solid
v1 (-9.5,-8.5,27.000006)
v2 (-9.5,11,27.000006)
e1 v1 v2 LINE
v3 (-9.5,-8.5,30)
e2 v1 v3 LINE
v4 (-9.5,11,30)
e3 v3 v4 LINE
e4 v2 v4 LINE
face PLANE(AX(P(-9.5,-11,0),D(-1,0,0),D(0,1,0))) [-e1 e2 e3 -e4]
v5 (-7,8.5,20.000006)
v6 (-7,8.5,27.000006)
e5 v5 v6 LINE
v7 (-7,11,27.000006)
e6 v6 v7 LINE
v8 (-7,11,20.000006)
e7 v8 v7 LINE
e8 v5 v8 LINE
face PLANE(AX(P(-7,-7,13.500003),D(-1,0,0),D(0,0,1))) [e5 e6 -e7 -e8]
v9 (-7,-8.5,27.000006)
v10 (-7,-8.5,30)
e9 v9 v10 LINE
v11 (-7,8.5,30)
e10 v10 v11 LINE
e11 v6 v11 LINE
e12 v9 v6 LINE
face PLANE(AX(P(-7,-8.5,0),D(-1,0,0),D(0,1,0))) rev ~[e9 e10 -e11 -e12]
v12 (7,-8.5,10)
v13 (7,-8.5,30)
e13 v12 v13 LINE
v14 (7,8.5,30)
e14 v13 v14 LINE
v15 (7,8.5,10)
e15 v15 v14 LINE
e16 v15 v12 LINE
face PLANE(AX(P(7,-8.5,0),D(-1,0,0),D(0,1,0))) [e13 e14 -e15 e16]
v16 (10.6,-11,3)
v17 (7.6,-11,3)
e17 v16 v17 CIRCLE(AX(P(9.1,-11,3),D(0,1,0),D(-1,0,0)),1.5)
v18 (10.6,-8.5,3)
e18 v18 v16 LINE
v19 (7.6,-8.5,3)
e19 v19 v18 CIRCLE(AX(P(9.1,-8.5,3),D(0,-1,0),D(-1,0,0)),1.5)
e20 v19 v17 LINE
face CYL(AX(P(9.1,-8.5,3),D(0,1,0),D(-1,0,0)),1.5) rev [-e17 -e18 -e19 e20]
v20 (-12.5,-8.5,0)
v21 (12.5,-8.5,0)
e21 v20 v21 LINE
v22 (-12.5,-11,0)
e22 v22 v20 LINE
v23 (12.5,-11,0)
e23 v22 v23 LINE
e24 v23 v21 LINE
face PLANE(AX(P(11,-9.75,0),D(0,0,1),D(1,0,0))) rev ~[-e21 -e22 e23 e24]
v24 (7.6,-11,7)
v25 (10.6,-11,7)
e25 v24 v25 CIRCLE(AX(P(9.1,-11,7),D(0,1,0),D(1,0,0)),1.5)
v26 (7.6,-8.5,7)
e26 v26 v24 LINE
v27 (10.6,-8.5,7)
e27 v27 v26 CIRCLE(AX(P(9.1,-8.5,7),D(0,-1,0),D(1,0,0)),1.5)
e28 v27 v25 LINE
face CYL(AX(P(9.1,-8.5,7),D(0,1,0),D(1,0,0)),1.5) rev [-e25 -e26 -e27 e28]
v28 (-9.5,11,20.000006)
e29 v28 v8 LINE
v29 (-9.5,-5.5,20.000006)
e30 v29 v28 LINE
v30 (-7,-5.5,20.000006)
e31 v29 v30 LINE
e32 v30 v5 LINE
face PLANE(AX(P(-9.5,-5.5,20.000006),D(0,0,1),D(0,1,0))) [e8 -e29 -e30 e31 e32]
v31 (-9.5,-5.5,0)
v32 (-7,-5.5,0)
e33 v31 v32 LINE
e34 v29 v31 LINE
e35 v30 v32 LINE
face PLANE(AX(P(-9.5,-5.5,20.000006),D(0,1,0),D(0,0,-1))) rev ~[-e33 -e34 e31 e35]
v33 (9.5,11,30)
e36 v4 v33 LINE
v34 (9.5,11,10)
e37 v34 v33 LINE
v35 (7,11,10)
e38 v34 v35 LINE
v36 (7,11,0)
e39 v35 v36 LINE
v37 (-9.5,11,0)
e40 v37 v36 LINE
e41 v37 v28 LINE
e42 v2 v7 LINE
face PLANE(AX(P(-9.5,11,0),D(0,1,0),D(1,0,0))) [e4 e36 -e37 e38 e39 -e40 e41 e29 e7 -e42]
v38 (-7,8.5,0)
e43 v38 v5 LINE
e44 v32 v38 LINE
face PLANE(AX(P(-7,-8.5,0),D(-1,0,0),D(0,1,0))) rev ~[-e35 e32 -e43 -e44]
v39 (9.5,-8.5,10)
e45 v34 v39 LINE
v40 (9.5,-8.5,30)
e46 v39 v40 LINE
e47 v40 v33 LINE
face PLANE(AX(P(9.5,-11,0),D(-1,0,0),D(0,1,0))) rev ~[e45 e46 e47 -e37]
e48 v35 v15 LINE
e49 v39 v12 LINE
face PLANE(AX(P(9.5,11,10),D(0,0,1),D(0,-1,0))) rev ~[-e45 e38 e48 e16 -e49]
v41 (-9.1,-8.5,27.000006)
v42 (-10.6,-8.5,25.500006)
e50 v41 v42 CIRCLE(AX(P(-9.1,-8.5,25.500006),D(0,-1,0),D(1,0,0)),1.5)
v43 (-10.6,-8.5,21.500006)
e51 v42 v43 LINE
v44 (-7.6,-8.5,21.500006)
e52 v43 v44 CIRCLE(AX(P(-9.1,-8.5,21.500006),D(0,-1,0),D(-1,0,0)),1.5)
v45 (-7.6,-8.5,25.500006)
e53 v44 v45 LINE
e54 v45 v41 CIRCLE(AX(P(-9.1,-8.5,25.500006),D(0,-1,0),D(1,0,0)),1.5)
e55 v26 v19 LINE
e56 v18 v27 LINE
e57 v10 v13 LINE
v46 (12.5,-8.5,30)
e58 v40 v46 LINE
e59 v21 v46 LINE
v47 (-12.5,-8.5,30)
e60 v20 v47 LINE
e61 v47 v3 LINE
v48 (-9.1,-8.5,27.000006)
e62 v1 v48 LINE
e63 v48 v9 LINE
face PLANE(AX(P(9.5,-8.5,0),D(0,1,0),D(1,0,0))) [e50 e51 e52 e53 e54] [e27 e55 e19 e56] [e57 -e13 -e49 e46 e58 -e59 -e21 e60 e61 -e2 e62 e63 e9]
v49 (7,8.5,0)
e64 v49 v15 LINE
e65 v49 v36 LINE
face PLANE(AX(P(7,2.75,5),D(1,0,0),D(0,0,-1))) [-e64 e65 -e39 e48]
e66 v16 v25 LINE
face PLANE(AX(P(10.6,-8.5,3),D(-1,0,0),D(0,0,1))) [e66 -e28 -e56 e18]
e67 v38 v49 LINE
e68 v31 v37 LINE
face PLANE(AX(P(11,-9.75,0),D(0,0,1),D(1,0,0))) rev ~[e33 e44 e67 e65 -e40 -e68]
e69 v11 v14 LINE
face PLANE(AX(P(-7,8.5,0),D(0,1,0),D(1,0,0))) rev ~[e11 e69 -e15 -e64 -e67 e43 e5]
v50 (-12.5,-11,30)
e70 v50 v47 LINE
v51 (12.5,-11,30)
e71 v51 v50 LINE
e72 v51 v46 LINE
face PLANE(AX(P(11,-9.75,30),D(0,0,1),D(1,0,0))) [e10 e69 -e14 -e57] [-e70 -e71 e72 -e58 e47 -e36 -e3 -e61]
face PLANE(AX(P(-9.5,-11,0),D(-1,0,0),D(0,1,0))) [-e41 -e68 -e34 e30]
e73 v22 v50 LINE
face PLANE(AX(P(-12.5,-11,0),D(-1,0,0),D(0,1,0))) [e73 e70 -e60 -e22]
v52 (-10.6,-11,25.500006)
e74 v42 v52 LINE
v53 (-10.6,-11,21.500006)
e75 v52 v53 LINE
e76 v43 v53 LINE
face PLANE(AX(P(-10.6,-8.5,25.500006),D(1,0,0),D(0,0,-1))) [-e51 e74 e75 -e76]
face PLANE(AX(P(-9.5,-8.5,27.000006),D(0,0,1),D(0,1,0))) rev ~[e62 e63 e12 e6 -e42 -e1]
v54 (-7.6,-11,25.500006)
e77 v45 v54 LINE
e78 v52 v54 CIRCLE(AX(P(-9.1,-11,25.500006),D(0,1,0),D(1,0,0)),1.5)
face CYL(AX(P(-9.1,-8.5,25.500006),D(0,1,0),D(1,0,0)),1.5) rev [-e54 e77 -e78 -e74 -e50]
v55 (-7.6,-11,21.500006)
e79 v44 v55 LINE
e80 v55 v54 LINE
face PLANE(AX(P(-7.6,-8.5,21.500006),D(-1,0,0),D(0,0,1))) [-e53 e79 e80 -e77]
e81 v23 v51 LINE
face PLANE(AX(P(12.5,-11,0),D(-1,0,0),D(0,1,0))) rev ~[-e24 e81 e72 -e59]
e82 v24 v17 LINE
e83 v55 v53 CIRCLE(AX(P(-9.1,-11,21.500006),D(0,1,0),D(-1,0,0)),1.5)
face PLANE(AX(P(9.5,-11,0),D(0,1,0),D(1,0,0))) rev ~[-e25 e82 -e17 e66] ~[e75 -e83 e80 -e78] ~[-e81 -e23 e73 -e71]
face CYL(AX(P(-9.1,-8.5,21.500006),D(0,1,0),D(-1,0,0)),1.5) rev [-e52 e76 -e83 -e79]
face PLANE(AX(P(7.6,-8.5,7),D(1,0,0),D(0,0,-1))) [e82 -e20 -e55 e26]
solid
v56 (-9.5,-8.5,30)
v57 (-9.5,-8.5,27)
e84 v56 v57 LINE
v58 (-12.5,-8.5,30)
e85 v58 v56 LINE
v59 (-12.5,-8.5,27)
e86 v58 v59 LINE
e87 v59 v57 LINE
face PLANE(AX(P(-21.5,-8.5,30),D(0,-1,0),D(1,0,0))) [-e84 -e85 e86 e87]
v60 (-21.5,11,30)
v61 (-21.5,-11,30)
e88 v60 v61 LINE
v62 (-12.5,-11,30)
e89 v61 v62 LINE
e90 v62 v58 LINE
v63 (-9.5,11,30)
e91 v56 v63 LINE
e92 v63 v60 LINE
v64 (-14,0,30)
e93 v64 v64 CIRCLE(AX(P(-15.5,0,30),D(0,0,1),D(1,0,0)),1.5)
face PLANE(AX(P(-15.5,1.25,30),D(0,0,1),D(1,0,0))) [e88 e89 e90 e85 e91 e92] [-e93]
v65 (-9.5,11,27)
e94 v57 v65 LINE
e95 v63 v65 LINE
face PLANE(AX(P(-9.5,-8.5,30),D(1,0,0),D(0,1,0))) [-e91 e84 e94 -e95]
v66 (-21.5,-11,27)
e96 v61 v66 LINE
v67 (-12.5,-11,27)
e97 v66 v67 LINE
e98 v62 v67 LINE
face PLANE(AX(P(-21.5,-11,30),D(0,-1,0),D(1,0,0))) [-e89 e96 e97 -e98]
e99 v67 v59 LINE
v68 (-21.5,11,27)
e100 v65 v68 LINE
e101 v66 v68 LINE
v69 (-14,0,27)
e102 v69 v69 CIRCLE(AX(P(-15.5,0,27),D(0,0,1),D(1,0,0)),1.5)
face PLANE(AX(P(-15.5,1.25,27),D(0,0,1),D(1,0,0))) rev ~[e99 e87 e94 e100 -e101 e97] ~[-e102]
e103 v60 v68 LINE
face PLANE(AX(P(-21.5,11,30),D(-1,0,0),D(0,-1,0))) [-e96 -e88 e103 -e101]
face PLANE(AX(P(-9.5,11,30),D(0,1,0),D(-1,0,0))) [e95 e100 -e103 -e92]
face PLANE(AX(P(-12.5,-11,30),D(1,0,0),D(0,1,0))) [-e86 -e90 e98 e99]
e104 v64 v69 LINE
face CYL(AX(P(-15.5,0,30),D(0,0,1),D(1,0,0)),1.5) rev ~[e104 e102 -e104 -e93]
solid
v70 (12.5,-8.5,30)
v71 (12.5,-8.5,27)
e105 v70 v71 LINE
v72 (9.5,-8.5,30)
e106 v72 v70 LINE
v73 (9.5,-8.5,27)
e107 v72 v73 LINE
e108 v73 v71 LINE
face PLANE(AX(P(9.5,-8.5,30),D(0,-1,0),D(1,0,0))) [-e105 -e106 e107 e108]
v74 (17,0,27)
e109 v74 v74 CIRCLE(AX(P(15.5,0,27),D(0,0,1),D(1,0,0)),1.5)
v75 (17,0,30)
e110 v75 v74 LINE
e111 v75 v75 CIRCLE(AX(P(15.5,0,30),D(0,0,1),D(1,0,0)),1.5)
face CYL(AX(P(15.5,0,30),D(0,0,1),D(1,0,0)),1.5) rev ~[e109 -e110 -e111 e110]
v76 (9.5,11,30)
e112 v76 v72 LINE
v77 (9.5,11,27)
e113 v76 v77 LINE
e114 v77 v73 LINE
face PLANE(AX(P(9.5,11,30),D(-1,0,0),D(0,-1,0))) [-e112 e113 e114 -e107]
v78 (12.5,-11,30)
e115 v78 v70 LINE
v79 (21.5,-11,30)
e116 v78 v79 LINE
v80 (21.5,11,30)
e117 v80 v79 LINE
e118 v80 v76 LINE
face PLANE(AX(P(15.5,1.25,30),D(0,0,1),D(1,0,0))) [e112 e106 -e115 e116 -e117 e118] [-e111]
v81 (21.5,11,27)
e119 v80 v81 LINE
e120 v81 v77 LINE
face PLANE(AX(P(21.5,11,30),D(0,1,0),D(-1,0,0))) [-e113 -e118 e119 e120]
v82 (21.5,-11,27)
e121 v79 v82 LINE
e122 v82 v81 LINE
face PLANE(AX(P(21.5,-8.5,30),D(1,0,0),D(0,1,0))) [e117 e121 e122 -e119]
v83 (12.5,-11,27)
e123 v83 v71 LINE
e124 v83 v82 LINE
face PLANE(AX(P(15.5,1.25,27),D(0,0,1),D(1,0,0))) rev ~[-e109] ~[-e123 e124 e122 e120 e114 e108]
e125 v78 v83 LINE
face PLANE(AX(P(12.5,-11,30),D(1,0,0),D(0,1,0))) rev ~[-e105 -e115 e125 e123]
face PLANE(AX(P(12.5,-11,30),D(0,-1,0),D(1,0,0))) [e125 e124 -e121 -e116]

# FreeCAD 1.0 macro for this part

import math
import FreeCAD as App
import Part
import Sketcher

V = App.Vector
Q = App.Units.Quantity


def add_polygon(sketch, points):
    """Adds a closed chain of lines whose ends are joined by coincident constraints."""
    first, n = sketch.GeometryCount, len(points)
    for a, b in zip(points, points[1:] + points[:1]):
        sketch.addGeometry(Part.LineSegment(App.Vector(*a, 0), App.Vector(*b, 0)), False)
    for i in range(n):
        sketch.addConstraint(Sketcher.Constraint("Coincident", first + i, 2, first + (i + 1) % n, 1))

doc = App.newDocument("Part")
body = doc.addObject("PartDesign::Body", "Body")

sketch1 = body.newObject("Sketcher::SketchObject", "Sketch")
sketch1.AttachmentSupport = (doc.getObject("XY_Plane"), [""])
sketch1.MapMode = "FlatFace"
add_polygon(sketch1, [(-9.5, 11), (-9.5, -8.5), (-12.5, -8.5), (-12.5, -11), (12.5, -11), (12.5, -8.5), (9.5, -8.5), (9.5, 11)])
add_polygon(sketch1, [(7, -8.5), (-7, -8.5), (-7, 8.5), (7, 8.5)])
sketch1.addConstraint(Sketcher.Constraint("Vertical", 0))
sketch1.addConstraint(Sketcher.Constraint("Horizontal", 1))
sketch1.addConstraint(Sketcher.Constraint("Vertical", 2))
sketch1.addConstraint(Sketcher.Constraint("Horizontal", 3))
sketch1.addConstraint(Sketcher.Constraint("Vertical", 4))
sketch1.addConstraint(Sketcher.Constraint("Horizontal", 5))
sketch1.addConstraint(Sketcher.Constraint("Vertical", 6))
sketch1.addConstraint(Sketcher.Constraint("Horizontal", 7))
sketch1.addConstraint(Sketcher.Constraint("Horizontal", 8))
sketch1.addConstraint(Sketcher.Constraint("Vertical", 9))
sketch1.addConstraint(Sketcher.Constraint("Horizontal", 10))
sketch1.addConstraint(Sketcher.Constraint("Vertical", 11))
sketch1.addConstraint(Sketcher.Constraint("Symmetric", 8, 2, 10, 2, -1, 1))
sketch1.addConstraint(Sketcher.Constraint("Symmetric", 1, 2, 4, 2, -2))
sketch1.addConstraint(Sketcher.Constraint("Horizontal", 5, 2, 8, 2))
sketch1.addConstraint(Sketcher.Constraint("Equal", 1, 5))
sketch1.addConstraint(Sketcher.Constraint("DistanceX", 1, 2, 1, 1, Q("3 mm")))
sketch1.addConstraint(Sketcher.Constraint("DistanceX", 3, 1, 3, 2, Q("25 mm")))
sketch1.addConstraint(Sketcher.Constraint("DistanceX", 8, 2, 8, 1, Q("14 mm")))
sketch1.addConstraint(Sketcher.Constraint("DistanceY", 9, 1, 9, 2, Q("17 mm")))
sketch1.addConstraint(Sketcher.Constraint("DistanceY", 0, 2, 0, 1, Q("19.5 mm")))
sketch1.addConstraint(Sketcher.Constraint("DistanceY", 2, 2, 2, 1, Q("2.5 mm")))
pad1 = body.newObject("PartDesign::Pad", "Pad")
pad1.Profile = sketch1
pad1.Length = 30

sketch2 = body.newObject("Sketcher::SketchObject", "Sketch001")
sketch2.AttachmentSupport = (doc.getObject("YZ_Plane"), [""])
sketch2.MapMode = "FlatFace"
sketch2.AttachmentOffset = App.Placement(V(0, 0, -9.5), App.Rotation())
add_polygon(sketch2, [(-8.5, 27.000006), (11, 27.000006), (11, 20.000006), (-5.5, 20.000006), (-5.5, 0), (-8.5, 0)])
sketch2.addConstraint(Sketcher.Constraint("Horizontal", 0))
sketch2.addConstraint(Sketcher.Constraint("Vertical", 1))
sketch2.addConstraint(Sketcher.Constraint("Horizontal", 2))
sketch2.addConstraint(Sketcher.Constraint("Vertical", 3))
sketch2.addConstraint(Sketcher.Constraint("Horizontal", 4))
sketch2.addConstraint(Sketcher.Constraint("Vertical", 5))
sketch2.addConstraint(Sketcher.Constraint("PointOnObject", 3, 2, -1))
sketch2.addConstraint(Sketcher.Constraint("DistanceX", 4, 2, 4, 1, Q("3 mm")))
sketch2.addConstraint(Sketcher.Constraint("DistanceY", 1, 2, 1, 1, Q("7 mm")))
sketch2.addConstraint(Sketcher.Constraint("DistanceX", 0, 1, 0, 2, Q("19.5 mm")))
sketch2.addConstraint(Sketcher.Constraint("DistanceX", -1, 1, 0, 2, Q("11 mm")))
sketch2.addConstraint(Sketcher.Constraint("DistanceY", 3, 2, 3, 1, Q("20.000006 mm")))
pocket1 = body.newObject("PartDesign::Pocket", "Pocket")
pocket1.Profile = sketch2
pocket1.Length = 2.5
pocket1.Reversed = True

sketch3 = body.newObject("Sketcher::SketchObject", "Sketch002")
sketch3.AttachmentSupport = (doc.getObject("YZ_Plane"), [""])
sketch3.MapMode = "FlatFace"
sketch3.AttachmentOffset = App.Placement(V(0, 0, 9.5), App.Rotation())
add_polygon(sketch3, [(11, 10), (-8.5, 10), (-8.5, 0), (11, 0)])
sketch3.addConstraint(Sketcher.Constraint("Horizontal", 0))
sketch3.addConstraint(Sketcher.Constraint("Vertical", 1))
sketch3.addConstraint(Sketcher.Constraint("Horizontal", 2))
sketch3.addConstraint(Sketcher.Constraint("Vertical", 3))
sketch3.addConstraint(Sketcher.Constraint("PointOnObject", 1, 2, -1))
sketch3.addConstraint(Sketcher.Constraint("DistanceY", 1, 2, 1, 1, Q("10 mm")))
sketch3.addConstraint(Sketcher.Constraint("DistanceX", 0, 2, 0, 1, Q("19.5 mm")))
sketch3.addConstraint(Sketcher.Constraint("DistanceX", -1, 1, 2, 2, Q("11 mm")))
pocket2 = body.newObject("PartDesign::Pocket", "Pocket001")
pocket2.Profile = sketch3
pocket2.Length = 2.5

sketch4 = body.newObject("Sketcher::SketchObject", "Sketch003")
sketch4.AttachmentSupport = (doc.getObject("XZ_Plane"), [""])
sketch4.MapMode = "FlatFace"
sketch4.AttachmentOffset = App.Placement(V(0, 0, 8.5), App.Rotation())
sketch4.addGeometry(Part.LineSegment(V(-10.6, 21.500006, 0), V(-10.6, 25.500006, 0)), False)
sketch4.addGeometry(Part.ArcOfCircle(Part.Circle(V(-9.1, 25.500006, 0), V(0, 0, 1), 1.5), math.radians(0), math.radians(180)), False)
sketch4.addGeometry(Part.LineSegment(V(-7.6, 25.500006, 0), V(-7.6, 21.500006, 0)), False)
sketch4.addGeometry(Part.ArcOfCircle(Part.Circle(V(-9.1, 21.500006, 0), V(0, 0, 1), 1.5), math.radians(180), math.radians(360)), False)
sketch4.addGeometry(Part.LineSegment(V(7.6, 3, 0), V(7.6, 7, 0)), False)
sketch4.addGeometry(Part.ArcOfCircle(Part.Circle(V(9.1, 7, 0), V(0, 0, 1), 1.5), math.radians(0), math.radians(180)), False)
sketch4.addGeometry(Part.LineSegment(V(10.6, 7, 0), V(10.6, 3, 0)), False)
sketch4.addGeometry(Part.ArcOfCircle(Part.Circle(V(9.1, 3, 0), V(0, 0, 1), 1.5), math.radians(180), math.radians(360)), False)
sketch4.addConstraint(Sketcher.Constraint("Tangent", 0, 2, 1, 2))
sketch4.addConstraint(Sketcher.Constraint("Tangent", 1, 1, 2, 1))
sketch4.addConstraint(Sketcher.Constraint("Tangent", 2, 2, 3, 2))
sketch4.addConstraint(Sketcher.Constraint("Tangent", 3, 1, 0, 1))
sketch4.addConstraint(Sketcher.Constraint("Tangent", 4, 2, 5, 2))
sketch4.addConstraint(Sketcher.Constraint("Tangent", 5, 1, 6, 1))
sketch4.addConstraint(Sketcher.Constraint("Tangent", 6, 2, 7, 2))
sketch4.addConstraint(Sketcher.Constraint("Tangent", 7, 1, 4, 1))
sketch4.addConstraint(Sketcher.Constraint("Vertical", 0))
sketch4.addConstraint(Sketcher.Constraint("Vertical", 2))
sketch4.addConstraint(Sketcher.Constraint("Vertical", 4))
sketch4.addConstraint(Sketcher.Constraint("Vertical", 6))
sketch4.addConstraint(Sketcher.Constraint("Equal", 3, 5))
sketch4.addConstraint(Sketcher.Constraint("Equal", 2, 4))
sketch4.addConstraint(Sketcher.Constraint("Radius", 1, Q("1.5 mm")))
sketch4.addConstraint(Sketcher.Constraint("DistanceY", 0, 1, 0, 2, Q("4 mm")))
sketch4.addConstraint(Sketcher.Constraint("DistanceY", -1, 1, 5, 3, Q("7 mm")))
sketch4.addConstraint(Sketcher.Constraint("DistanceX", 1, 3, -1, 1, Q("9.1 mm")))
sketch4.addConstraint(Sketcher.Constraint("DistanceX", -1, 1, 5, 3, Q("9.1 mm")))
sketch4.addConstraint(Sketcher.Constraint("DistanceY", -1, 1, 1, 3, Q("25.500006 mm")))
pocket3 = body.newObject("PartDesign::Pocket", "Pocket002")
pocket3.Profile = sketch4
pocket3.Type = "ThroughAll"
pocket3.Reversed = True
body2 = doc.addObject("PartDesign::Body", "Body001")
body2.AllowCompound = True

sketch5 = body2.newObject("Sketcher::SketchObject", "Sketch004")
sketch5.AttachmentSupport = (doc.getObject("XY_Plane001"), [""])
sketch5.MapMode = "FlatFace"
sketch5.AttachmentOffset = App.Placement(V(0, 0, 30), App.Rotation())
add_polygon(sketch5, [(-9.5, -8.5), (-9.5, 11), (-21.5, 11), (-21.5, -11), (-12.5, -11), (-12.5, -8.5)])
sketch5.addGeometry(Part.Circle(V(-15.5, 0, 0), V(0, 0, 1), 1.5), False)
add_polygon(sketch5, [(12.5, -8.5), (12.5, -11), (21.5, -11), (21.5, 11), (9.5, 11), (9.5, -8.5)])
sketch5.addGeometry(Part.Circle(V(15.5, 0, 0), V(0, 0, 1), 1.5), False)
sketch5.addConstraint(Sketcher.Constraint("Vertical", 0))
sketch5.addConstraint(Sketcher.Constraint("Horizontal", 1))
sketch5.addConstraint(Sketcher.Constraint("Vertical", 2))
sketch5.addConstraint(Sketcher.Constraint("Horizontal", 3))
sketch5.addConstraint(Sketcher.Constraint("Vertical", 4))
sketch5.addConstraint(Sketcher.Constraint("Horizontal", 5))
sketch5.addConstraint(Sketcher.Constraint("Vertical", 7))
sketch5.addConstraint(Sketcher.Constraint("Horizontal", 8))
sketch5.addConstraint(Sketcher.Constraint("Vertical", 9))
sketch5.addConstraint(Sketcher.Constraint("Horizontal", 10))
sketch5.addConstraint(Sketcher.Constraint("Vertical", 11))
sketch5.addConstraint(Sketcher.Constraint("Horizontal", 12))
sketch5.addConstraint(Sketcher.Constraint("Equal", 6, 13))
sketch5.addConstraint(Sketcher.Constraint("Symmetric", 6, 3, 13, 3, -1, 1))
sketch5.addConstraint(Sketcher.Constraint("Symmetric", 1, 2, 8, 2, -1, 1))
sketch5.addConstraint(Sketcher.Constraint("Symmetric", 3, 2, 7, 2, -2))
sketch5.addConstraint(Sketcher.Constraint("Symmetric", 0, 2, 10, 2, -2))
sketch5.addConstraint(Sketcher.Constraint("PointOnObject", 6, 3, -1))
sketch5.addConstraint(Sketcher.Constraint("Horizontal", 5, 2, 11, 2))
sketch5.addConstraint(Sketcher.Constraint("Diameter", 6, Q("3 mm")))
sketch5.addConstraint(Sketcher.Constraint("DistanceX", 1, 2, 1, 1, Q("12 mm")))
sketch5.addConstraint(Sketcher.Constraint("DistanceX", 3, 1, 3, 2, Q("9 mm")))
sketch5.addConstraint(Sketcher.Constraint("DistanceY", 2, 2, 2, 1, Q("22 mm")))
sketch5.addConstraint(Sketcher.Constraint("DistanceY", 0, 1, 0, 2, Q("19.5 mm")))
sketch5.addConstraint(Sketcher.Constraint("DistanceX", 6, 3, 13, 3, Q("31 mm")))
sketch5.addConstraint(Sketcher.Constraint("DistanceX", 6, 3, 0, 2, Q("6 mm")))
pad2 = body2.newObject("PartDesign::Pad", "Pad001")
pad2.Profile = sketch5
pad2.Length = 3
pad2.Reversed = True

doc.recompute()
